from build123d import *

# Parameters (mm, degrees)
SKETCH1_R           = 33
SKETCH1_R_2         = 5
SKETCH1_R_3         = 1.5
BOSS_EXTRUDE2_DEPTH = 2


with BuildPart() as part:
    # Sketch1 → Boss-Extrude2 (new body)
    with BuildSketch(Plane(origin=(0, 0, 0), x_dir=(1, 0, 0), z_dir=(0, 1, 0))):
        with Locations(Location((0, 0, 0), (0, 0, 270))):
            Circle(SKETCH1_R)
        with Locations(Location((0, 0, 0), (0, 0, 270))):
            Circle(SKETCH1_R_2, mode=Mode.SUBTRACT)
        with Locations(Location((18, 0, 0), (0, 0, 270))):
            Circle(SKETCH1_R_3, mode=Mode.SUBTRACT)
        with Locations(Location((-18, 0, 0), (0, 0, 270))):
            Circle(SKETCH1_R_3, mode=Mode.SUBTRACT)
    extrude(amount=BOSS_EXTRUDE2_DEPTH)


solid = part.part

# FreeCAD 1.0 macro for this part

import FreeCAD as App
import Part
import Sketcher
Q = App.Units.Quantity

doc = App.newDocument("Part")
body = doc.addObject("PartDesign::Body", "Body")

sketch1 = body.newObject("Sketcher::SketchObject", "Sketch")
sketch1.AttachmentSupport = (doc.getObject("XZ_Plane"), [""])
sketch1.MapMode = "FlatFace"
sketch1.addGeometry(Part.Circle(App.Vector(0, 0, 0), App.Vector(0, 0, 1), 33), False)
sketch1.addGeometry(Part.Circle(App.Vector(-18, 0, 0), App.Vector(0, 0, 1), 1.5), False)
sketch1.addGeometry(Part.Circle(App.Vector(18, 0, 0), App.Vector(0, 0, 1), 1.5), False)
sketch1.addGeometry(Part.Circle(App.Vector(0, 0, 0), App.Vector(0, 0, 1), 5), False)
sketch1.addConstraint(Sketcher.Constraint("Coincident", 0, 3, -1, 1))
sketch1.addConstraint(Sketcher.Constraint("Coincident", 3, 3, -1, 1))
sketch1.addConstraint(Sketcher.Constraint("Equal", 1, 2))
sketch1.addConstraint(Sketcher.Constraint("Symmetric", 1, 3, 2, 3, -1, 1))
sketch1.addConstraint(Sketcher.Constraint("PointOnObject", 1, 3, -1))
sketch1.addConstraint(Sketcher.Constraint("Diameter", 0, Q("66 mm")))
sketch1.addConstraint(Sketcher.Constraint("Diameter", 1, Q("3 mm")))
sketch1.addConstraint(Sketcher.Constraint("Diameter", 3, Q("10 mm")))
sketch1.addConstraint(Sketcher.Constraint("DistanceX", 1, 3, -1, 1, Q("18 mm")))
pad1 = body.newObject("PartDesign::Pad", "Pad")
pad1.Profile = sketch1
pad1.Length = 2
pad1.Reversed = True

doc.recompute()
